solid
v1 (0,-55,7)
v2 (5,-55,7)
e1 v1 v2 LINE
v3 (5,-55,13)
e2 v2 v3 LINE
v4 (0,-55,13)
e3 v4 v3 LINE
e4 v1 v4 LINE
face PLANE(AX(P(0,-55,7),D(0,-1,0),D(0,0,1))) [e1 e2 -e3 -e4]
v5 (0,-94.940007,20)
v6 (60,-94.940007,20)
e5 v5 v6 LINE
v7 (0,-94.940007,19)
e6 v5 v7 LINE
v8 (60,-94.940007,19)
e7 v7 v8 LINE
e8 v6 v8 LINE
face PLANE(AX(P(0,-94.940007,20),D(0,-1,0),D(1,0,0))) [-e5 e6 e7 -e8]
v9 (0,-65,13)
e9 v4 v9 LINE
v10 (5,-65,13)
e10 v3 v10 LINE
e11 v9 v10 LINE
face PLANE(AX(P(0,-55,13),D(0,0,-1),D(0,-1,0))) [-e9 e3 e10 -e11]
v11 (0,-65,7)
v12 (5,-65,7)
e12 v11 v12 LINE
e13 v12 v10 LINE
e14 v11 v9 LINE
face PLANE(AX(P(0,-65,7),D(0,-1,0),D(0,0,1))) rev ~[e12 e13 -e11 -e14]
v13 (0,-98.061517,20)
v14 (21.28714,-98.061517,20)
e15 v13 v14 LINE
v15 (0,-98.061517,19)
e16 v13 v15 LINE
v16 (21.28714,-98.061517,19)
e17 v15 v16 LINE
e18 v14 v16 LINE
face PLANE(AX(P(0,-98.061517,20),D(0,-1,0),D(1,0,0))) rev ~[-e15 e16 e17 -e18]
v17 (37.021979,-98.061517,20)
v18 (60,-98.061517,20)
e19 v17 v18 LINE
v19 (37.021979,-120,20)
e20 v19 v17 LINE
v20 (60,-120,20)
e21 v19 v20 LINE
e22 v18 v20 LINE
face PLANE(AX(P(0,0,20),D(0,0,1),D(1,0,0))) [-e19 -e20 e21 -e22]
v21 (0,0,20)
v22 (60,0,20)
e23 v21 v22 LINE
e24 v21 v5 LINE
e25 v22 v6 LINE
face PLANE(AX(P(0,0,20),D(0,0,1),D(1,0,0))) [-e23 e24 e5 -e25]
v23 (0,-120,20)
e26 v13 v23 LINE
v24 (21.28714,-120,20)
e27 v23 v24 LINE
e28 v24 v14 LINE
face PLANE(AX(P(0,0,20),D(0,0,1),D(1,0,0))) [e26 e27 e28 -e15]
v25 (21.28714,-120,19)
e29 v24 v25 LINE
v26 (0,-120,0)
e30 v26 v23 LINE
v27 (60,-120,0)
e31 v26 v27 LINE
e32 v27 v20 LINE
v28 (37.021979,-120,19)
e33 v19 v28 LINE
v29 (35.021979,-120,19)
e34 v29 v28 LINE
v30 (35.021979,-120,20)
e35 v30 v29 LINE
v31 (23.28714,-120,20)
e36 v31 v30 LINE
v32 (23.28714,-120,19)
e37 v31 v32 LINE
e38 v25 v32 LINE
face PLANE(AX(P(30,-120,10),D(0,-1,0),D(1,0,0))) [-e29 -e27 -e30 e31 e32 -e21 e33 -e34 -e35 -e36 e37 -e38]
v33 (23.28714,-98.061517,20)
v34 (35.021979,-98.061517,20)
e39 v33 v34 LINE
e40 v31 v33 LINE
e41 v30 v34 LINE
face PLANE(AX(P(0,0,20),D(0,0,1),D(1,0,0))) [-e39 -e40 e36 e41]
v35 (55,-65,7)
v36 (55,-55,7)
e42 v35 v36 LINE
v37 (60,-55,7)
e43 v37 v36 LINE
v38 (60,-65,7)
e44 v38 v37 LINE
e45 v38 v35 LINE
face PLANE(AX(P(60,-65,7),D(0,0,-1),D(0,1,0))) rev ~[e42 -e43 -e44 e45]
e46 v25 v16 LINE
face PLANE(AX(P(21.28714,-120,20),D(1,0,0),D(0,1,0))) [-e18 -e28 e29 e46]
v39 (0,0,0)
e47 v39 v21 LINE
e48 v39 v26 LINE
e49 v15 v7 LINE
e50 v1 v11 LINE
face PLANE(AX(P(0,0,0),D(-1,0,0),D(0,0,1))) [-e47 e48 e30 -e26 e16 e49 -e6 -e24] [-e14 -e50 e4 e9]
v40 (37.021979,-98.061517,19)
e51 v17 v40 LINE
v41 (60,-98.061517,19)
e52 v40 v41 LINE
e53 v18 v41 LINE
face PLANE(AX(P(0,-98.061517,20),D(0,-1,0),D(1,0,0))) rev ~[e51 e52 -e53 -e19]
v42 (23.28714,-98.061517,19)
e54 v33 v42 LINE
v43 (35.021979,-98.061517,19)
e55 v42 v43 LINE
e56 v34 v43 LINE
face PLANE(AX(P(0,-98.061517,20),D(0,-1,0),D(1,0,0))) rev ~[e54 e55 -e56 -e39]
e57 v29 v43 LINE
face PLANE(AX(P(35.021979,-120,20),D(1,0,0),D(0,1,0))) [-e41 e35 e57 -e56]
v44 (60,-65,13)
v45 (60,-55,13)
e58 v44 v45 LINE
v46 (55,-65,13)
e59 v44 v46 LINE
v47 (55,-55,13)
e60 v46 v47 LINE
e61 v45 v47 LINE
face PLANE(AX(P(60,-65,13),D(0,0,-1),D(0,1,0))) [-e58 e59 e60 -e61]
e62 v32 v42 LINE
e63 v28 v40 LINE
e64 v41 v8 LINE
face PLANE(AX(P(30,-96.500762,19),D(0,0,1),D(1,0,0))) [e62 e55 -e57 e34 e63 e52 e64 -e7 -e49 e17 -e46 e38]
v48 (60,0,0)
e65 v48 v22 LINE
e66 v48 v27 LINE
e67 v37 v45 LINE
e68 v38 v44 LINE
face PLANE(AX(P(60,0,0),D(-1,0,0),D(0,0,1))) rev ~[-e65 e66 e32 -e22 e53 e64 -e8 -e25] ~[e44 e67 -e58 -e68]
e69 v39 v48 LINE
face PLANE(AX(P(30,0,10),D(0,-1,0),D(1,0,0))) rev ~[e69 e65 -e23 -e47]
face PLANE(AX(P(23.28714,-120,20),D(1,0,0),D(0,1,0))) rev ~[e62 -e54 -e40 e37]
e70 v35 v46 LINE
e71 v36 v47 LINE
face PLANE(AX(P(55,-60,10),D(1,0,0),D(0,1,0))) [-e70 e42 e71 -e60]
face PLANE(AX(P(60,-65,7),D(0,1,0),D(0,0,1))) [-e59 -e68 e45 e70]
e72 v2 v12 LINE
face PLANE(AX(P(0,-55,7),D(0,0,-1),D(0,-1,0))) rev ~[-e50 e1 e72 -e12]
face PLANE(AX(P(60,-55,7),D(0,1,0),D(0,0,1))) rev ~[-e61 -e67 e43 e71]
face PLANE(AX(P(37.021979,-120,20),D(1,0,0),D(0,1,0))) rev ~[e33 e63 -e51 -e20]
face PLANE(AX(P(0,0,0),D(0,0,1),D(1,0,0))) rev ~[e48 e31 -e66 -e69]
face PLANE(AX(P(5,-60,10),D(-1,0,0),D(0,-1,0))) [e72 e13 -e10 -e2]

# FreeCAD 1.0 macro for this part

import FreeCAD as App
import Part
import Sketcher

V = App.Vector
Q = App.Units.Quantity

doc = App.newDocument("Part")
body = doc.addObject("PartDesign::Body", "Body")

sketch1 = doc.addObject("Sketcher::SketchObject", "Sketch")
body.addObject(sketch1)
sketch1.AttachmentSupport = (doc.XZ_Plane, [""])
sketch1.MapMode = "FlatFace"
sketch1.addGeometry([
    Part.LineSegment(V(0, 20, 0), V(0, 0, 0)),
    Part.LineSegment(V(0, 0, 0), V(60, 0, 0)),
    Part.LineSegment(V(60, 0, 0), V(60, 20, 0)),
    Part.LineSegment(V(60, 20, 0), V(0, 20, 0)),
], False)
sketch1.addConstraint([
    Sketcher.Constraint("Coincident", 0, 2, 1, 1),
    Sketcher.Constraint("Coincident", 1, 2, 2, 1),
    Sketcher.Constraint("Coincident", 2, 2, 3, 1),
    Sketcher.Constraint("Coincident", 3, 2, 0, 1),
    Sketcher.Constraint("Vertical", 0),
    Sketcher.Constraint("Horizontal", 1),
    Sketcher.Constraint("Vertical", 2),
    Sketcher.Constraint("Horizontal", 3),
    Sketcher.Constraint("Coincident", 0, 2, -1, 1),
    Sketcher.Constraint("DistanceX", 1, 1, 1, 2, Q("60 mm")),
    Sketcher.Constraint("DistanceY", 0, 2, 0, 1, Q("20 mm")),
])
pad1 = doc.addObject("PartDesign::Pad", "Pad")
body.addObject(pad1)
pad1.Profile = sketch1
pad1.Length = 120

sketch2 = doc.addObject("Sketcher::SketchObject", "Sketch001")
body.addObject(sketch2)
sketch2.AttachmentSupport = (doc.XY_Plane, [""])
sketch2.MapMode = "FlatFace"
sketch2.AttachmentOffset = App.Placement(V(0, 0, 20), App.Rotation())
sketch2.addGeometry([
    Part.LineSegment(V(0, -94.940007, 0), V(0, -98.061517, 0)),
    Part.LineSegment(V(0, -98.061517, 0), V(60, -98.061517, 0)),
    Part.LineSegment(V(60, -98.061517, 0), V(60, -94.940007, 0)),
    Part.LineSegment(V(60, -94.940007, 0), V(0, -94.940007, 0)),
], False)
sketch2.addConstraint([
    Sketcher.Constraint("Coincident", 0, 2, 1, 1),
    Sketcher.Constraint("Coincident", 1, 2, 2, 1),
    Sketcher.Constraint("Coincident", 2, 2, 3, 1),
    Sketcher.Constraint("Coincident", 3, 2, 0, 1),
    Sketcher.Constraint("Vertical", 0),
    Sketcher.Constraint("Horizontal", 1),
    Sketcher.Constraint("Vertical", 2),
    Sketcher.Constraint("Horizontal", 3),
    Sketcher.Constraint("PointOnObject", 0, 2, -2),
    Sketcher.Constraint("DistanceX", 1, 1, 1, 2, Q("60 mm")),
    Sketcher.Constraint("DistanceY", 0, 2, 0, 1, Q("3.12151 mm")),
    Sketcher.Constraint("DistanceY", 0, 2, -1, 1, Q("98.061517 mm")),
])
pocket1 = doc.addObject("PartDesign::Pocket", "Pocket")
body.addObject(pocket1)
pocket1.Profile = sketch2
pocket1.Length = 1

sketch3 = doc.addObject("Sketcher::SketchObject", "Sketch002")
body.addObject(sketch3)
sketch3.AttachmentSupport = (doc.XY_Plane, [""])
sketch3.MapMode = "FlatFace"
sketch3.AttachmentOffset = App.Placement(V(0, 0, 20), App.Rotation())
sketch3.addGeometry([
    Part.LineSegment(V(35.021979, -98.061517, 0), V(35.021979, -120, 0)),
    Part.LineSegment(V(35.021979, -120, 0), V(37.021979, -120, 0)),
    Part.LineSegment(V(37.021979, -120, 0), V(37.021979, -98.061517, 0)),
    Part.LineSegment(V(37.021979, -98.061517, 0), V(35.021979, -98.061517, 0)),
    Part.LineSegment(V(21.28714, -98.061517, 0), V(21.28714, -120, 0)),
    Part.LineSegment(V(21.28714, -120, 0), V(23.28714, -120, 0)),
    Part.LineSegment(V(23.28714, -120, 0), V(23.28714, -98.061517, 0)),
    Part.LineSegment(V(23.28714, -98.061517, 0), V(21.28714, -98.061517, 0)),
], False)
sketch3.addConstraint([
    Sketcher.Constraint("Coincident", 0, 2, 1, 1),
    Sketcher.Constraint("Coincident", 1, 2, 2, 1),
    Sketcher.Constraint("Coincident", 2, 2, 3, 1),
    Sketcher.Constraint("Coincident", 3, 2, 0, 1),
    Sketcher.Constraint("Coincident", 4, 2, 5, 1),
    Sketcher.Constraint("Coincident", 5, 2, 6, 1),
    Sketcher.Constraint("Coincident", 6, 2, 7, 1),
    Sketcher.Constraint("Coincident", 7, 2, 4, 1),
    Sketcher.Constraint("Vertical", 0),
    Sketcher.Constraint("Horizontal", 1),
    Sketcher.Constraint("Vertical", 2),
    Sketcher.Constraint("Horizontal", 3),
    Sketcher.Constraint("Vertical", 4),
    Sketcher.Constraint("Horizontal", 5),
    Sketcher.Constraint("Vertical", 6),
    Sketcher.Constraint("Horizontal", 7),
    Sketcher.Constraint("Horizontal", 1, 2, 4, 2),
    Sketcher.Constraint("Horizontal", 3, 2, 6, 2),
    Sketcher.Constraint("Equal", 3, 5),
    Sketcher.Constraint("DistanceX", 1, 1, 1, 2, Q("2 mm")),
    Sketcher.Constraint("DistanceY", 0, 2, -1, 1, Q("120 mm")),
    Sketcher.Constraint("DistanceY", 0, 2, 0, 1, Q("21.938483 mm")),
    Sketcher.Constraint("DistanceX", -1, 1, 0, 2, Q("35.021979 mm")),
    Sketcher.Constraint("DistanceX", -1, 1, 4, 2, Q("21.28714 mm")),
])
pocket2 = doc.addObject("PartDesign::Pocket", "Pocket001")
body.addObject(pocket2)
pocket2.Profile = sketch3
pocket2.Length = 1

sketch4 = doc.addObject("Sketcher::SketchObject", "Sketch003")
body.addObject(sketch4)
sketch4.AttachmentSupport = (doc.YZ_Plane, [""])
sketch4.MapMode = "FlatFace"
sketch4.AttachmentOffset = App.Placement(V(0, 0, 60), App.Rotation())
sketch4.addGeometry([
    Part.LineSegment(V(-65, 13, 0), V(-65, 7, 0)),
    Part.LineSegment(V(-65, 7, 0), V(-55, 7, 0)),
    Part.LineSegment(V(-55, 7, 0), V(-55, 13, 0)),
    Part.LineSegment(V(-55, 13, 0), V(-65, 13, 0)),
], False)
sketch4.addConstraint([
    Sketcher.Constraint("Coincident", 0, 2, 1, 1),
    Sketcher.Constraint("Coincident", 1, 2, 2, 1),
    Sketcher.Constraint("Coincident", 2, 2, 3, 1),
    Sketcher.Constraint("Coincident", 3, 2, 0, 1),
    Sketcher.Constraint("Vertical", 0),
    Sketcher.Constraint("Horizontal", 1),
    Sketcher.Constraint("Vertical", 2),
    Sketcher.Constraint("Horizontal", 3),
    Sketcher.Constraint("DistanceX", 1, 1, 1, 2, Q("10 mm")),
    Sketcher.Constraint("DistanceY", 0, 2, 0, 1, Q("6 mm")),
    Sketcher.Constraint("DistanceX", 0, 2, -1, 1, Q("65 mm")),
    Sketcher.Constraint("DistanceY", -1, 1, 0, 2, Q("7 mm")),
])
pocket3 = doc.addObject("PartDesign::Pocket", "Pocket002")
body.addObject(pocket3)
pocket3.Profile = sketch4
pocket3.Length = 5

sketch5 = doc.addObject("Sketcher::SketchObject", "Sketch004")
body.addObject(sketch5)
sketch5.AttachmentSupport = (doc.YZ_Plane, [""])
sketch5.MapMode = "FlatFace"
sketch5.addGeometry([
    Part.LineSegment(V(-55, 13, 0), V(-55, 7, 0)),
    Part.LineSegment(V(-55, 7, 0), V(-65, 7, 0)),
    Part.LineSegment(V(-65, 7, 0), V(-65, 13, 0)),
    Part.LineSegment(V(-65, 13, 0), V(-55, 13, 0)),
], False)
sketch5.addConstraint([
    Sketcher.Constraint("Coincident", 0, 2, 1, 1),
    Sketcher.Constraint("Coincident", 1, 2, 2, 1),
    Sketcher.Constraint("Coincident", 2, 2, 3, 1),
    Sketcher.Constraint("Coincident", 3, 2, 0, 1),
    Sketcher.Constraint("Vertical", 0),
    Sketcher.Constraint("Horizontal", 1),
    Sketcher.Constraint("Vertical", 2),
    Sketcher.Constraint("Horizontal", 3),
    Sketcher.Constraint("DistanceX", 1, 2, 1, 1, Q("10 mm")),
    Sketcher.Constraint("DistanceY", 0, 2, 0, 1, Q("6 mm")),
    Sketcher.Constraint("DistanceX", 0, 2, -1, 1, Q("55 mm")),
    Sketcher.Constraint("DistanceY", -1, 1, 0, 2, Q("7 mm")),
])
pocket4 = doc.addObject("PartDesign::Pocket", "Pocket003")
body.addObject(pocket4)
pocket4.Profile = sketch5
pocket4.Length = 5
pocket4.Reversed = True

doc.recompute()
